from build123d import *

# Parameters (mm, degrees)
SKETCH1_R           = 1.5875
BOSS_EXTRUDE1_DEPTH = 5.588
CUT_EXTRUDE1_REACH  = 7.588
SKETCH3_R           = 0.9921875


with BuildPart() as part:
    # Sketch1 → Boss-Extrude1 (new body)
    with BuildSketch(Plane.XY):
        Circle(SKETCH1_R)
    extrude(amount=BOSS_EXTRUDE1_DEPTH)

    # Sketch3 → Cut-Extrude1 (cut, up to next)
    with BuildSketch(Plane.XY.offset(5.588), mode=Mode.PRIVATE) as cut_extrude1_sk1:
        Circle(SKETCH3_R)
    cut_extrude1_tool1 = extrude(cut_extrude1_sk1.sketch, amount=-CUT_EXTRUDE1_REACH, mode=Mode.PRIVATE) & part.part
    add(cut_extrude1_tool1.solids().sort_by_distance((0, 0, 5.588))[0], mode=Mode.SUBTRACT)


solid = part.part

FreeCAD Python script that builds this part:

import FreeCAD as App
import Part
import Sketcher
Q = App.Units.Quantity

doc = App.newDocument("Part")
body = doc.addObject("PartDesign::Body", "Body")

# Sketch on XY plane
sketch1 = body.newObject("Sketcher::SketchObject", "Sketch")
sketch1.AttachmentSupport = (doc.getObject("XY_Plane"), [""])
sketch1.MapMode = "FlatFace"
sketch1.addGeometry(Part.Circle(App.Vector(0, 0, 0), App.Vector(0, 0, 1), 1.6), False)
sketch1.addConstraint(Sketcher.Constraint("Coincident", 0, 3, -1, 1))
sketch1.addConstraint(Sketcher.Constraint("Diameter", 0, Q("0.125 in")))
pad1 = body.newObject("PartDesign::Pad", "Pad")
pad1.Profile = sketch1
pad1.Length = Q("0.22 in")

# Sketch on XY plane
sketch2 = body.newObject("Sketcher::SketchObject", "Sketch001")
sketch2.AttachmentSupport = (doc.getObject("XY_Plane"), [""])
sketch2.MapMode = "FlatFace"
sketch2.AttachmentOffset = App.Placement(App.Vector(0, 0, 0.22 * 25.4), App.Rotation())
sketch2.addGeometry(Part.Circle(App.Vector(0, 0, 0), App.Vector(0, 0, 1), 1), False)
sketch2.addConstraint(Sketcher.Constraint("Coincident", 0, 3, -1, 1))
sketch2.addConstraint(Sketcher.Constraint("Diameter", 0, Q("0.078125 in")))
pocket1 = body.newObject("PartDesign::Pocket", "Pocket")
pocket1.Profile = sketch2
pocket1.Type = "UpToFirst"

doc.recompute()
